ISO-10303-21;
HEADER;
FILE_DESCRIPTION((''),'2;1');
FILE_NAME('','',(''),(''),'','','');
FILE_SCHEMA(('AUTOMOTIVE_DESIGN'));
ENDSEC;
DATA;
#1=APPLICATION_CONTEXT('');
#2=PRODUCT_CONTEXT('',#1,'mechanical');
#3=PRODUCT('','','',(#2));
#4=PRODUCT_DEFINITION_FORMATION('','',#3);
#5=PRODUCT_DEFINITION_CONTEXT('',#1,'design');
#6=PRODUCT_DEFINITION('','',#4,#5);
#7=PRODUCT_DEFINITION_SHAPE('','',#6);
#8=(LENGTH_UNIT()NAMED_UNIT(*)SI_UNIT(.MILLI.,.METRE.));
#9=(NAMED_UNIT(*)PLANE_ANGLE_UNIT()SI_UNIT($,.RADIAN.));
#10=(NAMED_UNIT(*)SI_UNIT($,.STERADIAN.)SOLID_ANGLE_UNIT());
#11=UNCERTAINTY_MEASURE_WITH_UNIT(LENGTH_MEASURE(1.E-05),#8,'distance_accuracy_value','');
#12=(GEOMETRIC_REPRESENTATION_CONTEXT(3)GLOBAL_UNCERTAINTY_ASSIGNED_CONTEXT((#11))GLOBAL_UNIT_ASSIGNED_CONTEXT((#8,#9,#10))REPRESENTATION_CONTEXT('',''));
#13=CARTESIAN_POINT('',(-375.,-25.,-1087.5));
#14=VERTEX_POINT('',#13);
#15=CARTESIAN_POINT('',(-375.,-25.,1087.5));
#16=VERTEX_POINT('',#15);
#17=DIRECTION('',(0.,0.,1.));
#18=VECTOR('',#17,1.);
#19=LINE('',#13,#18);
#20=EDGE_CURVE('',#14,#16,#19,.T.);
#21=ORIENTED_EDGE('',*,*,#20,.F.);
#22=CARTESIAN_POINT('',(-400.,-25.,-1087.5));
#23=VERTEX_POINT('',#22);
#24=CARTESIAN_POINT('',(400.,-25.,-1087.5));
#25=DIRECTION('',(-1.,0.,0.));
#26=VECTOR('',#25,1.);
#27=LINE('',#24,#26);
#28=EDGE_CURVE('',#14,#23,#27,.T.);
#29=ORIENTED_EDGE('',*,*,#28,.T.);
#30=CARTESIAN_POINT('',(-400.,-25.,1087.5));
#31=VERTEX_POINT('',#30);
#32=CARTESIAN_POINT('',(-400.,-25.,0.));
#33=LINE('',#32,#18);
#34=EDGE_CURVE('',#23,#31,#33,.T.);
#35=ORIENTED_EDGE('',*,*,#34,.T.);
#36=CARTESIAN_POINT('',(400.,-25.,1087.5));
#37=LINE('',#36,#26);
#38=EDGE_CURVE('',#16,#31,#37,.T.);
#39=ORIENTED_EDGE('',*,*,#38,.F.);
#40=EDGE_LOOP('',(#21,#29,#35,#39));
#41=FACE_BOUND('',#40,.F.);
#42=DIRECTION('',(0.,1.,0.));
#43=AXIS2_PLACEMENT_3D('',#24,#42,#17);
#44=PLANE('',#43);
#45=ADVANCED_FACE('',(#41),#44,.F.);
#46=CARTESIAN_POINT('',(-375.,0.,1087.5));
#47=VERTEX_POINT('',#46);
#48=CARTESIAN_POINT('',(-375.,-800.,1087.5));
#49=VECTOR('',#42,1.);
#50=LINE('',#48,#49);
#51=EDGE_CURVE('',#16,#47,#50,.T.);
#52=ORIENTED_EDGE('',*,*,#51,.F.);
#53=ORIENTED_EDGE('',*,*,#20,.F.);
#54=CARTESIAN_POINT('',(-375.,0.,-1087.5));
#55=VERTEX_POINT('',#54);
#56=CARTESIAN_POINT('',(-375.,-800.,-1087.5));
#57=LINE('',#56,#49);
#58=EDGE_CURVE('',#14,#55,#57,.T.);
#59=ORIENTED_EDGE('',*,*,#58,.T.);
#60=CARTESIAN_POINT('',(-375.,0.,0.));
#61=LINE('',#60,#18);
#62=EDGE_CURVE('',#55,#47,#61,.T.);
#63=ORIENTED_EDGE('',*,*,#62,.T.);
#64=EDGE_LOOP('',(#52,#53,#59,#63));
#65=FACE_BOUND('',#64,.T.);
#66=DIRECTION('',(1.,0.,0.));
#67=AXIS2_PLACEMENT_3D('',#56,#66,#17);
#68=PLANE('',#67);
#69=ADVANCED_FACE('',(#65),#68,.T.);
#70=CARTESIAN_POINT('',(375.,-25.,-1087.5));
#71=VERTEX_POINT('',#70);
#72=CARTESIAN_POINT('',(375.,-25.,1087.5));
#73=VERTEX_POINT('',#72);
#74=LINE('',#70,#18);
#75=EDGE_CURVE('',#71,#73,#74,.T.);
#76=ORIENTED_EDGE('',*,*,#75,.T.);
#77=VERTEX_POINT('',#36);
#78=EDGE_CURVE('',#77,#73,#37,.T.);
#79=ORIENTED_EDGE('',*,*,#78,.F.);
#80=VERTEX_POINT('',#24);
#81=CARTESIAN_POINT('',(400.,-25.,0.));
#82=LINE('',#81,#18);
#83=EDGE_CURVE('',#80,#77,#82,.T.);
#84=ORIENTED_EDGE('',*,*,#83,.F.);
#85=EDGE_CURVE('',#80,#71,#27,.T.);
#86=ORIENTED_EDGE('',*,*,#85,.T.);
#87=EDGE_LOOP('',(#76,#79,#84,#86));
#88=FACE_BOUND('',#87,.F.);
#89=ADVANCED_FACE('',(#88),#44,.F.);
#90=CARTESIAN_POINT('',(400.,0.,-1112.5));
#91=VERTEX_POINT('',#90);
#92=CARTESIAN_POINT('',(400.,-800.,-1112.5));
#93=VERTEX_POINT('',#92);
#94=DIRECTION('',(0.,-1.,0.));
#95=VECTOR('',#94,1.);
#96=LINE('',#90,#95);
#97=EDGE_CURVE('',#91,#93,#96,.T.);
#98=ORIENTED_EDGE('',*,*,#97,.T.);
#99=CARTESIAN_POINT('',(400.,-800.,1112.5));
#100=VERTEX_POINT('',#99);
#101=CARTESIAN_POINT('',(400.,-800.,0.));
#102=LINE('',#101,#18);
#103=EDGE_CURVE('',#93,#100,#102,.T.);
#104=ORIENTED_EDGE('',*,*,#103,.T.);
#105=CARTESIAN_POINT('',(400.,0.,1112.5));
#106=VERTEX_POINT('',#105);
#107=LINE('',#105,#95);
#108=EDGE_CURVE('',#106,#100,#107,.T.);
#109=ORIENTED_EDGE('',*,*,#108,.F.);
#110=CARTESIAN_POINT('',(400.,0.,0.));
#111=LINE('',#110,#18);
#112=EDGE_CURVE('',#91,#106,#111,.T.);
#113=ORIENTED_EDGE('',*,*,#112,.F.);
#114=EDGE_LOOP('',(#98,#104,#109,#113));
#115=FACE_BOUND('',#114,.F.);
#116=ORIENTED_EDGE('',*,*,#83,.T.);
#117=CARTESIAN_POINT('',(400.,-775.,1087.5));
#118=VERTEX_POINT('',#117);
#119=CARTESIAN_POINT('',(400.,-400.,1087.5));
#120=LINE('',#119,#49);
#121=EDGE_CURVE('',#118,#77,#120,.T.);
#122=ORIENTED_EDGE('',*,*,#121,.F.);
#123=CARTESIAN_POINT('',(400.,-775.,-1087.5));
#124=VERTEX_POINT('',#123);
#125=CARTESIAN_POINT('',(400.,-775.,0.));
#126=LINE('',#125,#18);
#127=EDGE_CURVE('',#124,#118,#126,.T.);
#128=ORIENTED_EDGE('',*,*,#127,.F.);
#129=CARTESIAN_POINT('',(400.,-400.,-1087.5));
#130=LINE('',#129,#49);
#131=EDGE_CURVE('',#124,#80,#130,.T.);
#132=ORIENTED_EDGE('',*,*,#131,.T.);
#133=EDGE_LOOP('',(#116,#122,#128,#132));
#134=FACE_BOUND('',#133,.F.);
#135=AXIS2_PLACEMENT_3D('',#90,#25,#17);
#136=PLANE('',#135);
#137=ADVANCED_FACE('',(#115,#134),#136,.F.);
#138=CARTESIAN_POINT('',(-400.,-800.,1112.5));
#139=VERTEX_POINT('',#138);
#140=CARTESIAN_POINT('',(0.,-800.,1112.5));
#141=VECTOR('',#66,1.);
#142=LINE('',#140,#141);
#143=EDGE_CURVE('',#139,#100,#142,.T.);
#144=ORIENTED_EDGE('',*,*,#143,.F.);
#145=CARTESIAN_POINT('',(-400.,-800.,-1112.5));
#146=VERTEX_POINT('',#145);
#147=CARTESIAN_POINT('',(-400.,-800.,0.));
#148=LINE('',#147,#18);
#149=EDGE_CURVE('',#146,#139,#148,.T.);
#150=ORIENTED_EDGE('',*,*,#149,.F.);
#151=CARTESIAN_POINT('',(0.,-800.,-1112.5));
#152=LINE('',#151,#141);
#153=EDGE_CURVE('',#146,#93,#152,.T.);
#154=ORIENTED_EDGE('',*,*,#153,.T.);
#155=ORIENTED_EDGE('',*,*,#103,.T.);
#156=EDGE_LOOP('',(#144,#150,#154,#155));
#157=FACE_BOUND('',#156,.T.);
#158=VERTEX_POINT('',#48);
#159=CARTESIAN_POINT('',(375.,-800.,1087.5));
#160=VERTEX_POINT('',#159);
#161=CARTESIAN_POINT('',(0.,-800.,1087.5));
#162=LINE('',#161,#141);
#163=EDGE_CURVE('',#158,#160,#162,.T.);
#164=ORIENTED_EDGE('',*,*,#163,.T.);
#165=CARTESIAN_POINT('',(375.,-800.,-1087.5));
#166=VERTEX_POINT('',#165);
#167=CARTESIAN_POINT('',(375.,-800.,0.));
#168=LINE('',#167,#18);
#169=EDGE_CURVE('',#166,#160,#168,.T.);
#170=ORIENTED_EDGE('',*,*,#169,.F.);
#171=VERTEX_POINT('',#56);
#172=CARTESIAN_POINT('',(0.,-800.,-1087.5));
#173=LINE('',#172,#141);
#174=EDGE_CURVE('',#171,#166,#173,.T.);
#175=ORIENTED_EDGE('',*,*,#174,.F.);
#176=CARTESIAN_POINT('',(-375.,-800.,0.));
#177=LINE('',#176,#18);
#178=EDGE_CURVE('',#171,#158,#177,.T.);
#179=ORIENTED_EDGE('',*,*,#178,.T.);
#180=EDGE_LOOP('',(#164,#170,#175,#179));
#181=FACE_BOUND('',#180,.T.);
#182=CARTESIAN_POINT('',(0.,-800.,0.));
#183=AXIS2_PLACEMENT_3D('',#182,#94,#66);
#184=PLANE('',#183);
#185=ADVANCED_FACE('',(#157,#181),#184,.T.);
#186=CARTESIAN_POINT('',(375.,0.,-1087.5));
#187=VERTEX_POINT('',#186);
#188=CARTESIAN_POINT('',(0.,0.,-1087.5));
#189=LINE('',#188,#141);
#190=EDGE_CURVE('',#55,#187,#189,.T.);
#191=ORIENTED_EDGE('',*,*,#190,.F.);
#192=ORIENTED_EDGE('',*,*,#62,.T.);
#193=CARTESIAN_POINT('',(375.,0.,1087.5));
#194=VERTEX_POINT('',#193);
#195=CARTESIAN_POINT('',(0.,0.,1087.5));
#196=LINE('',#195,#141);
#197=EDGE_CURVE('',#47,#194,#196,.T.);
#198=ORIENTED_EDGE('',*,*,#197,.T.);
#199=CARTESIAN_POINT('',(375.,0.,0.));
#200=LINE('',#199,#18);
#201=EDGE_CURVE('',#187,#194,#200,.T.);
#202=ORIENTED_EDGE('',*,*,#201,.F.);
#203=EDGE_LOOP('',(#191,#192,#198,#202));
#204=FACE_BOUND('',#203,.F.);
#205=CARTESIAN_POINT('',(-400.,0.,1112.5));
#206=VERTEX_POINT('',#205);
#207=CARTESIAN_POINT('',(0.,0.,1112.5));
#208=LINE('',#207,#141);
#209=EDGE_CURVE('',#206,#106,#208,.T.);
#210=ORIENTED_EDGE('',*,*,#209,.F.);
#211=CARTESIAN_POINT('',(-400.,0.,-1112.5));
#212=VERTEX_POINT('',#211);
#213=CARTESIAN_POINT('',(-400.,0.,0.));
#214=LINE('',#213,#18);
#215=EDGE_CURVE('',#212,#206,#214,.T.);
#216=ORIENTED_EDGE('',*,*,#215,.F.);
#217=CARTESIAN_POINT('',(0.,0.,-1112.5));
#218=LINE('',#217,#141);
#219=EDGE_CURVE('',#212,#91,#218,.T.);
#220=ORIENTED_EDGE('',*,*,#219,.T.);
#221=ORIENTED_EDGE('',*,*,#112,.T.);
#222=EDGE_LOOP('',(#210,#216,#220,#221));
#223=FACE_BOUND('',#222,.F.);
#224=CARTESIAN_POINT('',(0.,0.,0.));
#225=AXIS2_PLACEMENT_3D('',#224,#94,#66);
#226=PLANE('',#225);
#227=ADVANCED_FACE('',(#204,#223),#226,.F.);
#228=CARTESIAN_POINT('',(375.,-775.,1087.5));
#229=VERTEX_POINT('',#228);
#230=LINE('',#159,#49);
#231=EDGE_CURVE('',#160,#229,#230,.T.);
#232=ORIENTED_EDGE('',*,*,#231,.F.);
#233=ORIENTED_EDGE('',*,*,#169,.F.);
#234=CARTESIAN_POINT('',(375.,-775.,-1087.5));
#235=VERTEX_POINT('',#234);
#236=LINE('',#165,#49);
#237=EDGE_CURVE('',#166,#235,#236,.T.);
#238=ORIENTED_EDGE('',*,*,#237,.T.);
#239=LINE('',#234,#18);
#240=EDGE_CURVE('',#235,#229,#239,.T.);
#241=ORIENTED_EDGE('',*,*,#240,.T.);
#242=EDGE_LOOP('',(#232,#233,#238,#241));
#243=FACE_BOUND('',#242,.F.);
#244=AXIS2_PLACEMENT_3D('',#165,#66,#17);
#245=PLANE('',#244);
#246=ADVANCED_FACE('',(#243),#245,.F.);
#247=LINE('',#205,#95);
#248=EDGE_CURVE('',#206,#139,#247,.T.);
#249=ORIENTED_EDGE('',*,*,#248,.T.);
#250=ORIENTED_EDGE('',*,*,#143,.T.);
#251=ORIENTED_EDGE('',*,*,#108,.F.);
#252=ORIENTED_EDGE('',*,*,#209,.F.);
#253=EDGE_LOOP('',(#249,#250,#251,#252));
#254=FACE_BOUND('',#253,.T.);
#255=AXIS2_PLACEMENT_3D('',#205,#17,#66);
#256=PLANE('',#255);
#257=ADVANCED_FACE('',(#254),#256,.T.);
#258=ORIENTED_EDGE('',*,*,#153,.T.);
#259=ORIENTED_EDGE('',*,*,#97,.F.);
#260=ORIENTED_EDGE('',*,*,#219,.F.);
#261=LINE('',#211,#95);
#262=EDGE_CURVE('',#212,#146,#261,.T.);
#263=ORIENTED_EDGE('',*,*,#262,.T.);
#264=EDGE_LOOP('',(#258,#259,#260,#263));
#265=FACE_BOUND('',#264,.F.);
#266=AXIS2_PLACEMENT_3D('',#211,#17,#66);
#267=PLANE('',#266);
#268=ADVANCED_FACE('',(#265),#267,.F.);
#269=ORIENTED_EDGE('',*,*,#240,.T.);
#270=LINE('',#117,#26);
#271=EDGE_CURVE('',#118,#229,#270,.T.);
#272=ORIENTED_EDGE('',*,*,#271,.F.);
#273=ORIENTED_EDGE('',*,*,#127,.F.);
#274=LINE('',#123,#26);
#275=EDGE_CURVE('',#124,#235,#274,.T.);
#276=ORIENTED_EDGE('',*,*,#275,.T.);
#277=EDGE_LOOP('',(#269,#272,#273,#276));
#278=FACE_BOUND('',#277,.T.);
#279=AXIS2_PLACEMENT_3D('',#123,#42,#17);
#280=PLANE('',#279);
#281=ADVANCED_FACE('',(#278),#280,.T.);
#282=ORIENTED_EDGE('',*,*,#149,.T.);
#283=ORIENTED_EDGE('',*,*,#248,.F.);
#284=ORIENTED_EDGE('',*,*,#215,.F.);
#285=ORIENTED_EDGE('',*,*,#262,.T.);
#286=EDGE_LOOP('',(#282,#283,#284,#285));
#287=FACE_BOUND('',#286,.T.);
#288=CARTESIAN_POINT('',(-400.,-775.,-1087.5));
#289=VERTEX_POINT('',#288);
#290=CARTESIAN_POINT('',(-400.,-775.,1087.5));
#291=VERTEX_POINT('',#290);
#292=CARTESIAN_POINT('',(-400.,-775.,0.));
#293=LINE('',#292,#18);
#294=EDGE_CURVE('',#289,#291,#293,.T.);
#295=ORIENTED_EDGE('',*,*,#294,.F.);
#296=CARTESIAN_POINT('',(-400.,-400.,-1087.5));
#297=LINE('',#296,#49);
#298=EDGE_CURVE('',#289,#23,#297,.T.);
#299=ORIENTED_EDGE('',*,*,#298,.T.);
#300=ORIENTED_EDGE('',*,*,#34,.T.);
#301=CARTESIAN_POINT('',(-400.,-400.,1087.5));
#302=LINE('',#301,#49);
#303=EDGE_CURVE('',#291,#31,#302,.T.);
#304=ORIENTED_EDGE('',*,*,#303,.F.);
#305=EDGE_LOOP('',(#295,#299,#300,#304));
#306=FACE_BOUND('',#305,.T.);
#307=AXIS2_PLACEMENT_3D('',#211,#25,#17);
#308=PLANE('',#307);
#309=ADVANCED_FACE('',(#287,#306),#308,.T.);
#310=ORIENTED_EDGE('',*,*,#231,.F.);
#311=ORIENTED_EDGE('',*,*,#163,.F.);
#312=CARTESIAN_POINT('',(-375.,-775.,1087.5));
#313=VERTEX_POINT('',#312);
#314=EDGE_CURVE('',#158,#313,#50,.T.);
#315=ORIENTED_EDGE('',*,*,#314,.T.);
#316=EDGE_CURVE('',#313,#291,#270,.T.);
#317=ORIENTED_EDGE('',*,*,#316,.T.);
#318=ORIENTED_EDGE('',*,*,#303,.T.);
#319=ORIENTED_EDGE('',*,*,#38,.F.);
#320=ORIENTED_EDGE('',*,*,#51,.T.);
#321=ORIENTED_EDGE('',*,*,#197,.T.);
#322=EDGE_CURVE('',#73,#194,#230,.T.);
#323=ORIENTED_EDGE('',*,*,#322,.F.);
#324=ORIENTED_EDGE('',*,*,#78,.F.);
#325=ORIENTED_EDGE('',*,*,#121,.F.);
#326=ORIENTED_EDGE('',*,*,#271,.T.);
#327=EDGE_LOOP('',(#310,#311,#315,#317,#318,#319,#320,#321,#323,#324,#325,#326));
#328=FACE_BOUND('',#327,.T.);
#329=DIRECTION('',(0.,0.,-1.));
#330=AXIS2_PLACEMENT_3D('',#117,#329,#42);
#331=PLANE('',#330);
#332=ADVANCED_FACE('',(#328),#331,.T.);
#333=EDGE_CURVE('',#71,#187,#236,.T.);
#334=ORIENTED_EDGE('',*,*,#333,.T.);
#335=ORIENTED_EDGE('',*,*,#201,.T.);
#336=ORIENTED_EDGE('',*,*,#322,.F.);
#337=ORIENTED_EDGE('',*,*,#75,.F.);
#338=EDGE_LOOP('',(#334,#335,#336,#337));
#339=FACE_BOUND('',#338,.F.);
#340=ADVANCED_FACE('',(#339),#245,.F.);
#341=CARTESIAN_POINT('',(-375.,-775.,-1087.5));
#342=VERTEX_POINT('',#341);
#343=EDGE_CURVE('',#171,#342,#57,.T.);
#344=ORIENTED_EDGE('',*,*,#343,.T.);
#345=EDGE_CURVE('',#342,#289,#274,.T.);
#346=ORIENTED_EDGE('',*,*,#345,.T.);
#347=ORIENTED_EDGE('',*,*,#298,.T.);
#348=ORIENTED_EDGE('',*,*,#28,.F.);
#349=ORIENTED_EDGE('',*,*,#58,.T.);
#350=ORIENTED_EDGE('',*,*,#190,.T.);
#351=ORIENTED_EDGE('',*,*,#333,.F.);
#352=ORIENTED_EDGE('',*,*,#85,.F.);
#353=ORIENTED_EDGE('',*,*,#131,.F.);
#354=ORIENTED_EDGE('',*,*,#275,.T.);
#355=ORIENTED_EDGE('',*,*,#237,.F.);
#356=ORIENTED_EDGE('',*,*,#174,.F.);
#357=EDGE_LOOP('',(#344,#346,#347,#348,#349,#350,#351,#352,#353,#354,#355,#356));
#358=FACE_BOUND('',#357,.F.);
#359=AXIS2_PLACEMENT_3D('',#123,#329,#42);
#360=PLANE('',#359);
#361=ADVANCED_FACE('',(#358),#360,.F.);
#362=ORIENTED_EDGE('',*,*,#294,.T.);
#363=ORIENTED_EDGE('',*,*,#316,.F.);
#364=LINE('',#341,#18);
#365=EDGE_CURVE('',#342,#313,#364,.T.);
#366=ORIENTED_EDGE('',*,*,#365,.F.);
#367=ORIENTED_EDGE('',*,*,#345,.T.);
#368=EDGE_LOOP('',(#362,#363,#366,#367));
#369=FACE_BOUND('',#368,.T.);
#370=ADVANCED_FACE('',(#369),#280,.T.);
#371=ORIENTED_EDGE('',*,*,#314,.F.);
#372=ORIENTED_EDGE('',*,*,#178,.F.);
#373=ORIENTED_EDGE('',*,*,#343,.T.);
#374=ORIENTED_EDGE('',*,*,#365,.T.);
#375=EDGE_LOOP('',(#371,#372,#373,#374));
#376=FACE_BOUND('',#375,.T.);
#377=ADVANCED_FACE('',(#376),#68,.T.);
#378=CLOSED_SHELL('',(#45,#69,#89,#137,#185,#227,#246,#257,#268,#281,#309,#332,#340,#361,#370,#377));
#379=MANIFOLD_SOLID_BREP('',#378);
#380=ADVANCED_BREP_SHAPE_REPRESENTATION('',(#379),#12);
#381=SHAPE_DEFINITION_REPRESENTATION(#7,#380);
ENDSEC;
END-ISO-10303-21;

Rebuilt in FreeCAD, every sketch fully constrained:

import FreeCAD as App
import Part
import Sketcher
from FreeCAD import Vector
Q = App.Units.Quantity


def add_polygon(sketch, points):
    """Adds a closed chain of lines whose ends are joined by coincident constraints."""
    first, n = sketch.GeometryCount, len(points)
    for a, b in zip(points, points[1:] + points[:1]):
        sketch.addGeometry(Part.LineSegment(App.Vector(*a, 0), App.Vector(*b, 0)), False)
    for i in range(n):
        sketch.addConstraint(Sketcher.Constraint("Coincident", first + i, 2, first + (i + 1) % n, 1))

doc = App.newDocument("Part")
body = doc.addObject("PartDesign::Body", "Body")

# Sketch on XZ plane
sketch1 = body.newObject("Sketcher::SketchObject", "Sketch")
sketch1.AttachmentSupport = (doc.getObject("XZ_Plane"), [""])
sketch1.MapMode = "FlatFace"
add_polygon(sketch1, [(-400, 1112), (-400, -1112), (400, -1112), (400, 1112)])  # lines 0-3
sketch1.addConstraint([
    Sketcher.Constraint("Vertical", 0),
    Sketcher.Constraint("Horizontal", 1),
    Sketcher.Constraint("Vertical", 2),
    Sketcher.Constraint("Horizontal", 3),
    Sketcher.Constraint("Symmetric", 0, 2, 2, 2, -1, 1),
    Sketcher.Constraint("DistanceX", 1, 1, 1, 2, Q("800 mm")),
    Sketcher.Constraint("DistanceY", 0, 2, 0, 1, Q("2225 mm")),
])
pad1 = body.newObject("PartDesign::Pad", "Pad")
pad1.Profile = sketch1
pad1.Length = 800

# Sketch on XZ plane
sketch2 = body.newObject("Sketcher::SketchObject", "Sketch001")
sketch2.AttachmentSupport = (doc.getObject("XZ_Plane"), [""])
sketch2.MapMode = "FlatFace"
sketch2.AttachmentOffset = App.Placement(Vector(0, 0, 800), App.Rotation())
add_polygon(sketch2, [(-375, 1088), (-375, -1088), (375, -1088), (375, 1088)])  # lines 0-3
sketch2.addConstraint([
    Sketcher.Constraint("Vertical", 0),
    Sketcher.Constraint("Horizontal", 1),
    Sketcher.Constraint("Vertical", 2),
    Sketcher.Constraint("Horizontal", 3),
    Sketcher.Constraint("Symmetric", 0, 2, 2, 2, -1, 1),
    Sketcher.Constraint("DistanceX", 1, 1, 1, 2, Q("750 mm")),
    Sketcher.Constraint("DistanceY", 0, 2, 0, 1, Q("2175 mm")),
])
pocket1 = body.newObject("PartDesign::Pocket", "Pocket")
pocket1.Profile = sketch2
pocket1.Type = "ThroughAll"

# Sketch on YZ plane
sketch3 = body.newObject("Sketcher::SketchObject", "Sketch002")
sketch3.AttachmentSupport = (doc.getObject("YZ_Plane"), [""])
sketch3.MapMode = "FlatFace"
sketch3.AttachmentOffset = App.Placement(Vector(0, 0, 400), App.Rotation())
add_polygon(sketch3, [(-775, 1088), (-775, -1088), (-25, -1088), (-25, 1088)])  # lines 0-3
sketch3.addConstraint([
    Sketcher.Constraint("Vertical", 0),
    Sketcher.Constraint("Horizontal", 1),
    Sketcher.Constraint("Vertical", 2),
    Sketcher.Constraint("Horizontal", 3),
    Sketcher.Constraint("DistanceX", 1, 1, 1, 2, Q("750 mm")),
    Sketcher.Constraint("DistanceY", 0, 2, 0, 1, Q("2175 mm")),
    Sketcher.Constraint("DistanceX", 0, 2, -1, 1, Q("775 mm")),
    Sketcher.Constraint("DistanceY", 0, 2, -1, 1, Q("1087.5 mm")),
])
pocket2 = body.newObject("PartDesign::Pocket", "Pocket001")
pocket2.Profile = sketch3
pocket2.Type = "ThroughAll"

doc.recompute()
